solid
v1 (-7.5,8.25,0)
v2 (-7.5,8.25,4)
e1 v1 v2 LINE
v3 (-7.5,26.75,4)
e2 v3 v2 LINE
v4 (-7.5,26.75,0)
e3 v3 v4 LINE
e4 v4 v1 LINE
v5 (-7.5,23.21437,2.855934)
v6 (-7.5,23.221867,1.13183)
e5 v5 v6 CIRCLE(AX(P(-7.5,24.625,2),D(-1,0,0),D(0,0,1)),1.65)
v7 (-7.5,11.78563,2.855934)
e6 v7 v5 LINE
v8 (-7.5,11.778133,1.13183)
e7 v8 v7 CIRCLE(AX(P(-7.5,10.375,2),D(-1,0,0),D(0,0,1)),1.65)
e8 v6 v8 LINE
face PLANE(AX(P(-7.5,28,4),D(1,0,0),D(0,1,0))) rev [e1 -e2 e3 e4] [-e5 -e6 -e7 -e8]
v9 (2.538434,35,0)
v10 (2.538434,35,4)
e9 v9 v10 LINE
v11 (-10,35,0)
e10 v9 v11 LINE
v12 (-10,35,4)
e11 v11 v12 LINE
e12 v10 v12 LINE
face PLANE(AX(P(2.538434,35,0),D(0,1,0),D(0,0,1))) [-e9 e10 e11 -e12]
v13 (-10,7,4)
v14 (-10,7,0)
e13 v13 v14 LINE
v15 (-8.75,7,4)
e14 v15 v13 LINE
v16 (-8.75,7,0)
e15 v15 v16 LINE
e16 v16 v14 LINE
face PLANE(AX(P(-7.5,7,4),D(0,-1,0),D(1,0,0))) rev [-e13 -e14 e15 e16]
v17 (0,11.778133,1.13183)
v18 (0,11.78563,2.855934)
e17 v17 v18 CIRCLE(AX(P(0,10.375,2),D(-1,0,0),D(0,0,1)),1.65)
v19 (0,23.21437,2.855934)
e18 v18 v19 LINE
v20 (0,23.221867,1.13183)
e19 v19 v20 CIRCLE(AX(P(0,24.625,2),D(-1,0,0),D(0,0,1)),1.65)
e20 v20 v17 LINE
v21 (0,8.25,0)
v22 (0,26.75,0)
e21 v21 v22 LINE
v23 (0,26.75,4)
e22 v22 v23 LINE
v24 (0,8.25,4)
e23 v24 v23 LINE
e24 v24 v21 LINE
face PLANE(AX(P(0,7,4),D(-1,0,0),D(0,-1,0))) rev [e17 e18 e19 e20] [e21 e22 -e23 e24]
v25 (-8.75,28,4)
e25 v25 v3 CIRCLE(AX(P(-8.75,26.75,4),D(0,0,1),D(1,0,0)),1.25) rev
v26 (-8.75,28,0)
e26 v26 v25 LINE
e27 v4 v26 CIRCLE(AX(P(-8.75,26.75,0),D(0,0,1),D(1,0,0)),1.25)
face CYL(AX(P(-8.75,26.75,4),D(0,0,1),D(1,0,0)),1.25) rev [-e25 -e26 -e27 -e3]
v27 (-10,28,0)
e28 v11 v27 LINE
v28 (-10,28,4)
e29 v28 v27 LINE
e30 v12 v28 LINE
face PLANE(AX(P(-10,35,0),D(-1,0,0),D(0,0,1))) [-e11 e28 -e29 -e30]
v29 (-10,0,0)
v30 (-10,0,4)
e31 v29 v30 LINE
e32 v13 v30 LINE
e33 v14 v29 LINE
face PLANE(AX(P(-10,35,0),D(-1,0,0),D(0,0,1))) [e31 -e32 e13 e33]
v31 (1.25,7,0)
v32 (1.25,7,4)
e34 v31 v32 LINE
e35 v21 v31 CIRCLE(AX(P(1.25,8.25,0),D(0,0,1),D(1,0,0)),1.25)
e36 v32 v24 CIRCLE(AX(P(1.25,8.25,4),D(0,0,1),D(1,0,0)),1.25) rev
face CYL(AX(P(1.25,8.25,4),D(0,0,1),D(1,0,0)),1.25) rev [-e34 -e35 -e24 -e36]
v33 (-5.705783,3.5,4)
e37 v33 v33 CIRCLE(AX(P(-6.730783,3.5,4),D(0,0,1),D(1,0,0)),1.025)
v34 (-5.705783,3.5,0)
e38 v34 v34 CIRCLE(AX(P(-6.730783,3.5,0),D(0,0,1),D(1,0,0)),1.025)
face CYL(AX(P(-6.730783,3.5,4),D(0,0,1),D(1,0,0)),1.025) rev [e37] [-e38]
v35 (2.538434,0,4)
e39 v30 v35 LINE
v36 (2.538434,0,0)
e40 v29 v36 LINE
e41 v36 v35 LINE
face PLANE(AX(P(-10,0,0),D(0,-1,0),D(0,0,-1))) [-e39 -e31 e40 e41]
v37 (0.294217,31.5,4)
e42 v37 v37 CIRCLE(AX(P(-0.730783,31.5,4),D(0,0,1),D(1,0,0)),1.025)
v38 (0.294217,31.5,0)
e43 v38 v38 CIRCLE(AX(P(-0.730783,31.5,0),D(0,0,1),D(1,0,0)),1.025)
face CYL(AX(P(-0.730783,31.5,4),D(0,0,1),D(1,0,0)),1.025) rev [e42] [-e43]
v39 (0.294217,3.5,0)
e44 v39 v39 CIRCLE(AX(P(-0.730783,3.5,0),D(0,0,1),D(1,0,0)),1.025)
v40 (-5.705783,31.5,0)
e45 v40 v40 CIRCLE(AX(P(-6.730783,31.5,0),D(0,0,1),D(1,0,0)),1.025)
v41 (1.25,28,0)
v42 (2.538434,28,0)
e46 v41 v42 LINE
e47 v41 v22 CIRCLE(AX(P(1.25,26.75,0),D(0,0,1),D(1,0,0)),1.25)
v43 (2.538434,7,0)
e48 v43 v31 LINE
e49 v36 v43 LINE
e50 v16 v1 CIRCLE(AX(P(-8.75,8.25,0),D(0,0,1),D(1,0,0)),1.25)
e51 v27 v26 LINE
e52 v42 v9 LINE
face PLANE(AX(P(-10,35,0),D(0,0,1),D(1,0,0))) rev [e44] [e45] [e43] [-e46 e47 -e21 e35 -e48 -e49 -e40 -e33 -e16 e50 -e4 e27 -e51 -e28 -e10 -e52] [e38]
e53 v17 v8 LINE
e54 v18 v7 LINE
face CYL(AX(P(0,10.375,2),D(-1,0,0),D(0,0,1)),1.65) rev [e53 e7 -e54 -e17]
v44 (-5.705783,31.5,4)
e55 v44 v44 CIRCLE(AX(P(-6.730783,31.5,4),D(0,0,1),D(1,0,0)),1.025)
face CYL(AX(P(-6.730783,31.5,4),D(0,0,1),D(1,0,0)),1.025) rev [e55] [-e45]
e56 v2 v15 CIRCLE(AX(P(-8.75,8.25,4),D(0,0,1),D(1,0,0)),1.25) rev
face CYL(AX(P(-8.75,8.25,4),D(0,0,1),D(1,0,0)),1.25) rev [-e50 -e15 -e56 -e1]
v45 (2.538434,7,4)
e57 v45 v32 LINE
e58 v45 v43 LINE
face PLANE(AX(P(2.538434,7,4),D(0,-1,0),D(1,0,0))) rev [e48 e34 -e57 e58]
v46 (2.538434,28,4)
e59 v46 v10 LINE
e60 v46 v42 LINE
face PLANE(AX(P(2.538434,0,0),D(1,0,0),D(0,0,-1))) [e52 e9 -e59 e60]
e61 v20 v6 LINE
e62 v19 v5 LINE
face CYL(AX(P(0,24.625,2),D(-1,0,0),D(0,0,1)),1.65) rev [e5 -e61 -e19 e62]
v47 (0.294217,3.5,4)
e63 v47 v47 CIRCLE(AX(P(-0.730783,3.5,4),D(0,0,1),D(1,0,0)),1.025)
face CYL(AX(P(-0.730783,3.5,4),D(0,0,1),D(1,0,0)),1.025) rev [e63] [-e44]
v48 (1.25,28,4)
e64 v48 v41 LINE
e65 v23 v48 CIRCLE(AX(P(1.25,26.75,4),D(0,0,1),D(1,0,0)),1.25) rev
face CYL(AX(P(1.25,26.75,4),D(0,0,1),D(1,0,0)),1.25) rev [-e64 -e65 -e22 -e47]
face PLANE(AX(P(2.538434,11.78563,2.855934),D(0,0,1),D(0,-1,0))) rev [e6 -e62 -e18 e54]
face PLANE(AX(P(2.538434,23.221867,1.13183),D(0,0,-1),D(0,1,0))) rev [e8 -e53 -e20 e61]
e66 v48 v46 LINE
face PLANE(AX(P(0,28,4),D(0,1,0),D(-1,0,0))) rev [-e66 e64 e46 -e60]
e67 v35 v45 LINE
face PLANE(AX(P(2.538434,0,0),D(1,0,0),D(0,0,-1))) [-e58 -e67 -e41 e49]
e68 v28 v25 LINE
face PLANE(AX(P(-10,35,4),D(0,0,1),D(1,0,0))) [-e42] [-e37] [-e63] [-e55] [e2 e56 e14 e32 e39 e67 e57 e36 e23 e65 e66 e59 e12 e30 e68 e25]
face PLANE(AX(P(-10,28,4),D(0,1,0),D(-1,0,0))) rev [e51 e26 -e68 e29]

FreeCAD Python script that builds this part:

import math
import FreeCAD as App
import Part
import Sketcher
from FreeCAD import Vector
Q = App.Units.Quantity


def edges_at(feature, points):
    """Names of the edges that pass closest to the given points."""
    edges = feature.Shape.Edges
    near = lambda p: min(range(len(edges)), key=lambda i: edges[i].distToShape(Part.Vertex(*p))[0])
    return sorted({f"Edge{near(p) + 1}" for p in points})

doc = App.newDocument("Part")
params = doc.addObject("Spreadsheet::Sheet", "Params")
for row, (alias, value) in enumerate([
    ("sketch1_height", "35 mm"),
    ("pad1_length", "4 mm"),
    ("sketch2_height", "21 mm"),
    ("sketch2_width", "2.5 mm"),
    ("sketch3_height", "21 mm"),
    ("sketch4_radius", "1.65 mm"),
    ("sketch5_width", "7.5 mm"),
    ("sketch5_height", "1.65 mm"),
    ("groove_angle", "360 deg"),
    ("sketch6_width", "7.5 mm"),
    ("sketch6_height", "1.65 mm"),
    ("groove2_angle", "360 deg"),
    ("sketch7_diameter", "2.05 mm"),
    ("hole_diameter", "2.05 mm"),
    ("fillet_radius", "1.25 mm"),
], start=1):
    params.set(f"A{row}", alias)
    params.set(f"B{row}", "=" + value)
    params.setAlias(f"B{row}", alias)

body = doc.addObject("PartDesign::Body", "Body")

# Sketch on XY plane
sketch1 = doc.addObject("Sketcher::SketchObject", "Sketch")
body.addObject(sketch1)
sketch1.AttachmentSupport = (doc.XY_Plane, [""])
sketch1.MapMode = "FlatFace"
sketch1.AttachmentOffset = App.Placement(Vector(0, 0, 4), App.Rotation())
sketch1.addGeometry(Part.LineSegment(Vector(-10, 35, 0), Vector(-10, 0, 0)), False)
sketch1.addGeometry(Part.LineSegment(Vector(-10, 0, 0), Vector(2.538434, 0, 0)), False)
sketch1.addGeometry(Part.LineSegment(Vector(2.538434, 0, 0), Vector(2.538434, 35, 0)), False)
sketch1.addGeometry(Part.LineSegment(Vector(2.538434, 35, 0), Vector(-10, 35, 0)), False)
sketch1.addConstraint(Sketcher.Constraint("Coincident", 0, 2, 1, 1))
sketch1.addConstraint(Sketcher.Constraint("Coincident", 1, 2, 2, 1))
sketch1.addConstraint(Sketcher.Constraint("Coincident", 2, 2, 3, 1))
sketch1.addConstraint(Sketcher.Constraint("Coincident", 3, 2, 0, 1))
sketch1.addConstraint(Sketcher.Constraint("Vertical", 0))
sketch1.addConstraint(Sketcher.Constraint("Horizontal", 1))
sketch1.addConstraint(Sketcher.Constraint("Vertical", 2))
sketch1.addConstraint(Sketcher.Constraint("Horizontal", 3))
sketch1.addConstraint(Sketcher.Constraint("PointOnObject", 0, 2, -1))
sketch1.addConstraint(Sketcher.Constraint("DistanceY", 0, 2, 0, 1, Q("35 mm")))
sketch1.addConstraint(Sketcher.Constraint("DistanceX", 0, 2, -1, 1, Q("10 mm")))
sketch1.addConstraint(Sketcher.Constraint("DistanceX", 1, 1, 1, 2, Q("12.538434 mm")))
sketch1.setExpression("Constraints[9]", "Params.sketch1_height")
pad1 = doc.addObject("PartDesign::Pad", "Pad")
body.addObject(pad1)
pad1.Profile = sketch1
pad1.setExpression("Length", "Params.pad1_length")
pad1.Reversed = True

# Sketch on XY plane
sketch2 = doc.addObject("Sketcher::SketchObject", "Sketch001")
body.addObject(sketch2)
sketch2.AttachmentSupport = (doc.XY_Plane, [""])
sketch2.MapMode = "FlatFace"
sketch2.addGeometry(Part.LineSegment(Vector(-7.5, 28, 0), Vector(-7.5, 7, 0)), False)
sketch2.addGeometry(Part.LineSegment(Vector(-7.5, 7, 0), Vector(-10, 7, 0)), False)
sketch2.addGeometry(Part.LineSegment(Vector(-10, 7, 0), Vector(-10, 28, 0)), False)
sketch2.addGeometry(Part.LineSegment(Vector(-10, 28, 0), Vector(-7.5, 28, 0)), False)
sketch2.addConstraint(Sketcher.Constraint("Coincident", 0, 2, 1, 1))
sketch2.addConstraint(Sketcher.Constraint("Coincident", 1, 2, 2, 1))
sketch2.addConstraint(Sketcher.Constraint("Coincident", 2, 2, 3, 1))
sketch2.addConstraint(Sketcher.Constraint("Coincident", 3, 2, 0, 1))
sketch2.addConstraint(Sketcher.Constraint("Vertical", 0))
sketch2.addConstraint(Sketcher.Constraint("Horizontal", 1))
sketch2.addConstraint(Sketcher.Constraint("Vertical", 2))
sketch2.addConstraint(Sketcher.Constraint("Horizontal", 3))
sketch2.addConstraint(Sketcher.Constraint("DistanceY", 0, 2, 0, 1, Q("21 mm")))
sketch2.addConstraint(Sketcher.Constraint("DistanceX", 1, 2, 1, 1, Q("2.5 mm")))
sketch2.addConstraint(Sketcher.Constraint("DistanceY", -1, 1, 0, 2, Q("7 mm")))
sketch2.addConstraint(Sketcher.Constraint("DistanceX", 1, 2, -1, 1, Q("10 mm")))
sketch2.setExpression("Constraints[8]", "Params.sketch2_height")
sketch2.setExpression("Constraints[9]", "Params.sketch2_width")
pocket1 = doc.addObject("PartDesign::Pocket", "Pocket")
body.addObject(pocket1)
pocket1.Profile = sketch2
pocket1.Type = "ThroughAll"
pocket1.Reversed = True

# Sketch on XY plane
sketch3 = doc.addObject("Sketcher::SketchObject", "Sketch002")
body.addObject(sketch3)
sketch3.AttachmentSupport = (doc.XY_Plane, [""])
sketch3.MapMode = "FlatFace"
sketch3.addGeometry(Part.LineSegment(Vector(2.538434, 28, 0), Vector(2.538434, 7, 0)), False)
sketch3.addGeometry(Part.LineSegment(Vector(2.538434, 7, 0), Vector(0, 7, 0)), False)
sketch3.addGeometry(Part.LineSegment(Vector(0, 7, 0), Vector(0, 28, 0)), False)
sketch3.addGeometry(Part.LineSegment(Vector(0, 28, 0), Vector(2.538434, 28, 0)), False)
sketch3.addConstraint(Sketcher.Constraint("Coincident", 0, 2, 1, 1))
sketch3.addConstraint(Sketcher.Constraint("Coincident", 1, 2, 2, 1))
sketch3.addConstraint(Sketcher.Constraint("Coincident", 2, 2, 3, 1))
sketch3.addConstraint(Sketcher.Constraint("Coincident", 3, 2, 0, 1))
sketch3.addConstraint(Sketcher.Constraint("Vertical", 0))
sketch3.addConstraint(Sketcher.Constraint("Horizontal", 1))
sketch3.addConstraint(Sketcher.Constraint("Vertical", 2))
sketch3.addConstraint(Sketcher.Constraint("Horizontal", 3))
sketch3.addConstraint(Sketcher.Constraint("PointOnObject", 1, 2, -2))
sketch3.addConstraint(Sketcher.Constraint("DistanceY", 0, 2, 0, 1, Q("21 mm")))
sketch3.addConstraint(Sketcher.Constraint("DistanceY", -1, 1, 0, 2, Q("7 mm")))
sketch3.addConstraint(Sketcher.Constraint("DistanceX", 1, 2, 1, 1, Q("2.538434 mm")))
sketch3.setExpression("Constraints[9]", "Params.sketch3_height")
pocket2 = doc.addObject("PartDesign::Pocket", "Pocket001")
body.addObject(pocket2)
pocket2.Profile = sketch3
pocket2.Type = "ThroughAll"
pocket2.Reversed = True

# Sketch on YZ plane
sketch4 = doc.addObject("Sketcher::SketchObject", "Sketch003")
body.addObject(sketch4)
sketch4.AttachmentSupport = (doc.YZ_Plane, [""])
sketch4.MapMode = "FlatFace"
sketch4.AttachmentOffset = App.Placement(Vector(0, 0, -7.5), App.Rotation())
sketch4.addGeometry(Part.LineSegment(Vector(11.78563, 2.855934, 0), Vector(23.21437, 2.855934, 0)), False)
sketch4.addGeometry(Part.ArcOfCircle(Part.Circle(Vector(24.625, 2, 0), Vector(0, 0, 1), 1.65), math.radians(148.75171), math.radians(211.746601)), False)
sketch4.addGeometry(Part.LineSegment(Vector(23.221867, 1.13183, 0), Vector(11.778133, 1.13183, 0)), False)
sketch4.addGeometry(Part.ArcOfCircle(Part.Circle(Vector(10.375, 2, 0), Vector(0, 0, 1), 1.65), math.radians(-31.746601), math.radians(31.24829)), False)
sketch4.addConstraint(Sketcher.Constraint("Coincident", 0, 2, 1, 1))
sketch4.addConstraint(Sketcher.Constraint("Coincident", 1, 2, 2, 1))
sketch4.addConstraint(Sketcher.Constraint("Coincident", 2, 2, 3, 1))
sketch4.addConstraint(Sketcher.Constraint("Coincident", 3, 2, 0, 1))
sketch4.addConstraint(Sketcher.Constraint("Horizontal", 0))
sketch4.addConstraint(Sketcher.Constraint("Horizontal", 2))
sketch4.addConstraint(Sketcher.Constraint("Equal", 1, 3))
sketch4.addConstraint(Sketcher.Constraint("Horizontal", 1, 3, 3, 3))
sketch4.addConstraint(Sketcher.Constraint("Radius", 1, Q("1.65 mm")))
sketch4.addConstraint(Sketcher.Constraint("DistanceY", -1, 1, 1, 3, Q("2 mm")))
sketch4.addConstraint(Sketcher.Constraint("DistanceX", 3, 3, 1, 3, Q("14.25 mm")))
sketch4.addConstraint(Sketcher.Constraint("DistanceX", -1, 1, 1, 3, Q("24.625 mm")))
sketch4.addConstraint(Sketcher.Constraint("DistanceX", 0, 1, 0, 2, Q("11.42874 mm")))
sketch4.addConstraint(Sketcher.Constraint("DistanceX", 2, 2, 2, 1, Q("11.443735 mm")))
sketch4.setExpression("Constraints[8]", "Params.sketch4_radius")
pocket3 = doc.addObject("PartDesign::Pocket", "Pocket002")
body.addObject(pocket3)
pocket3.Profile = sketch4
pocket3.Type = "ThroughAll"
pocket3.Reversed = True

# Sketch on XY plane
sketch5 = doc.addObject("Sketcher::SketchObject", "Sketch004")
body.addObject(sketch5)
sketch5.AttachmentSupport = (doc.XY_Plane, [""])
sketch5.MapMode = "FlatFace"
sketch5.AttachmentOffset = App.Placement(Vector(0, 0, 2), App.Rotation())
sketch5.addGeometry(Part.LineSegment(Vector(0, 26.275, 0), Vector(0, 24.625, 0)), False)
sketch5.addGeometry(Part.LineSegment(Vector(0, 24.625, 0), Vector(-7.5, 24.625, 0)), False)
sketch5.addGeometry(Part.LineSegment(Vector(-7.5, 24.625, 0), Vector(-7.5, 26.275, 0)), False)
sketch5.addGeometry(Part.LineSegment(Vector(-7.5, 26.275, 0), Vector(0, 26.275, 0)), False)
sketch5.addGeometry(Part.LineSegment(Vector(0, 24.625, 0), Vector(-7.5, 24.625, 0)), True)  # axis
sketch5.addConstraint(Sketcher.Constraint("Coincident", 0, 2, 1, 1))
sketch5.addConstraint(Sketcher.Constraint("Coincident", 1, 2, 2, 1))
sketch5.addConstraint(Sketcher.Constraint("Coincident", 2, 2, 3, 1))
sketch5.addConstraint(Sketcher.Constraint("Coincident", 3, 2, 0, 1))
sketch5.addConstraint(Sketcher.Constraint("Vertical", 0))
sketch5.addConstraint(Sketcher.Constraint("Horizontal", 1))
sketch5.addConstraint(Sketcher.Constraint("Vertical", 2))
sketch5.addConstraint(Sketcher.Constraint("Horizontal", 3))
sketch5.addConstraint(Sketcher.Constraint("Horizontal", 4))
sketch5.addConstraint(Sketcher.Constraint("Coincident", 4, 1, 0, 2))
sketch5.addConstraint(Sketcher.Constraint("PointOnObject", 0, 2, -2))
sketch5.addConstraint(Sketcher.Constraint("Vertical", 2, 2, 4, 2))
sketch5.addConstraint(Sketcher.Constraint("DistanceX", 1, 2, 1, 1, Q("7.5 mm")))
sketch5.addConstraint(Sketcher.Constraint("DistanceY", 0, 2, 0, 1, Q("1.65 mm")))
sketch5.addConstraint(Sketcher.Constraint("DistanceY", -1, 1, 0, 2, Q("24.625 mm")))
sketch5.setExpression("Constraints[12]", "Params.sketch5_width")
sketch5.setExpression("Constraints[13]", "Params.sketch5_height")
groove = doc.addObject("PartDesign::Groove", "Groove")
body.addObject(groove)
groove.Profile = sketch5
groove.ReferenceAxis = (sketch5, ["Axis0"])
groove.setExpression("Angle", "Params.groove_angle")

# Sketch on XY plane
sketch6 = doc.addObject("Sketcher::SketchObject", "Sketch005")
body.addObject(sketch6)
sketch6.AttachmentSupport = (doc.XY_Plane, [""])
sketch6.MapMode = "FlatFace"
sketch6.AttachmentOffset = App.Placement(Vector(0, 0, 2), App.Rotation())
sketch6.addGeometry(Part.LineSegment(Vector(0, 12.025, 0), Vector(0, 10.375, 0)), False)
sketch6.addGeometry(Part.LineSegment(Vector(0, 10.375, 0), Vector(-7.5, 10.375, 0)), False)
sketch6.addGeometry(Part.LineSegment(Vector(-7.5, 10.375, 0), Vector(-7.5, 12.025, 0)), False)
sketch6.addGeometry(Part.LineSegment(Vector(-7.5, 12.025, 0), Vector(0, 12.025, 0)), False)
sketch6.addGeometry(Part.LineSegment(Vector(0, 10.375, 0), Vector(-7.5, 10.375, 0)), True)  # axis
sketch6.addConstraint(Sketcher.Constraint("Coincident", 0, 2, 1, 1))
sketch6.addConstraint(Sketcher.Constraint("Coincident", 1, 2, 2, 1))
sketch6.addConstraint(Sketcher.Constraint("Coincident", 2, 2, 3, 1))
sketch6.addConstraint(Sketcher.Constraint("Coincident", 3, 2, 0, 1))
sketch6.addConstraint(Sketcher.Constraint("Vertical", 0))
sketch6.addConstraint(Sketcher.Constraint("Horizontal", 1))
sketch6.addConstraint(Sketcher.Constraint("Vertical", 2))
sketch6.addConstraint(Sketcher.Constraint("Horizontal", 3))
sketch6.addConstraint(Sketcher.Constraint("Horizontal", 4))
sketch6.addConstraint(Sketcher.Constraint("Coincident", 4, 1, 0, 2))
sketch6.addConstraint(Sketcher.Constraint("PointOnObject", 0, 2, -2))
sketch6.addConstraint(Sketcher.Constraint("Vertical", 2, 2, 4, 2))
sketch6.addConstraint(Sketcher.Constraint("DistanceX", 1, 2, 1, 1, Q("7.5 mm")))
sketch6.addConstraint(Sketcher.Constraint("DistanceY", 0, 2, 0, 1, Q("1.65 mm")))
sketch6.addConstraint(Sketcher.Constraint("DistanceY", -1, 1, 0, 2, Q("10.375 mm")))
sketch6.setExpression("Constraints[12]", "Params.sketch6_width")
sketch6.setExpression("Constraints[13]", "Params.sketch6_height")
groove2 = doc.addObject("PartDesign::Groove", "Groove001")
body.addObject(groove2)
groove2.Profile = sketch6
groove2.ReferenceAxis = (sketch6, ["Axis0"])
groove2.setExpression("Angle", "Params.groove2_angle")

# Sketch on XY plane
sketch7 = doc.addObject("Sketcher::SketchObject", "Sketch006")
body.addObject(sketch7)
sketch7.AttachmentSupport = (doc.XY_Plane, [""])
sketch7.MapMode = "FlatFace"
sketch7.AttachmentOffset = App.Placement(Vector(0, 0, 4), App.Rotation())
sketch7.addGeometry(Part.Circle(Vector(-0.730783, 3.5, 0), Vector(0, 0, 1), 1.025), False)
sketch7.addGeometry(Part.Circle(Vector(-6.730783, 3.5, 0), Vector(0, 0, 1), 1.025), False)
sketch7.addGeometry(Part.Circle(Vector(-0.730783, 31.5, 0), Vector(0, 0, 1), 1.025), False)
sketch7.addGeometry(Part.Circle(Vector(-6.730783, 31.5, 0), Vector(0, 0, 1), 1.025), False)
sketch7.addConstraint(Sketcher.Constraint("Equal", 0, 1))
sketch7.addConstraint(Sketcher.Constraint("Equal", 1, 2))
sketch7.addConstraint(Sketcher.Constraint("Equal", 2, 3))
sketch7.addConstraint(Sketcher.Constraint("Horizontal", 0, 3, 1, 3))
sketch7.addConstraint(Sketcher.Constraint("Horizontal", 2, 3, 3, 3))
sketch7.addConstraint(Sketcher.Constraint("Vertical", 0, 3, 2, 3))
sketch7.addConstraint(Sketcher.Constraint("Vertical", 1, 3, 3, 3))
sketch7.addConstraint(Sketcher.Constraint("Diameter", 0, Q("2.05 mm")))
sketch7.addConstraint(Sketcher.Constraint("DistanceX", 1, 3, 0, 3, Q("6 mm")))
sketch7.addConstraint(Sketcher.Constraint("DistanceY", 0, 3, 2, 3, Q("28 mm")))
sketch7.addConstraint(Sketcher.Constraint("DistanceY", -1, 1, 0, 3, Q("3.5 mm")))
sketch7.addConstraint(Sketcher.Constraint("DistanceX", 0, 3, -1, 1, Q("0.730783 mm")))
sketch7.setExpression("Constraints[7]", "Params.sketch7_diameter")
doc.recompute()
hole = doc.addObject("PartDesign::Hole", "Hole")
body.addObject(hole)
hole.Profile = sketch7
hole.ThreadType = "None"
hole.setExpression("Diameter", "Params.hole_diameter")
hole.DepthType = "ThroughAll"
doc.recompute()

fillet = doc.addObject("PartDesign::Fillet", "Fillet")
body.addObject(fillet)
fillet.Base = (hole, edges_at(hole, [
    (-7.5, 7, 2),
    (-7.5, 28, 2),
    (0, 28, 2),
    (0, 7, 2),
]))
fillet.setExpression("Radius", "Params.fillet_radius")

doc.recompute()
